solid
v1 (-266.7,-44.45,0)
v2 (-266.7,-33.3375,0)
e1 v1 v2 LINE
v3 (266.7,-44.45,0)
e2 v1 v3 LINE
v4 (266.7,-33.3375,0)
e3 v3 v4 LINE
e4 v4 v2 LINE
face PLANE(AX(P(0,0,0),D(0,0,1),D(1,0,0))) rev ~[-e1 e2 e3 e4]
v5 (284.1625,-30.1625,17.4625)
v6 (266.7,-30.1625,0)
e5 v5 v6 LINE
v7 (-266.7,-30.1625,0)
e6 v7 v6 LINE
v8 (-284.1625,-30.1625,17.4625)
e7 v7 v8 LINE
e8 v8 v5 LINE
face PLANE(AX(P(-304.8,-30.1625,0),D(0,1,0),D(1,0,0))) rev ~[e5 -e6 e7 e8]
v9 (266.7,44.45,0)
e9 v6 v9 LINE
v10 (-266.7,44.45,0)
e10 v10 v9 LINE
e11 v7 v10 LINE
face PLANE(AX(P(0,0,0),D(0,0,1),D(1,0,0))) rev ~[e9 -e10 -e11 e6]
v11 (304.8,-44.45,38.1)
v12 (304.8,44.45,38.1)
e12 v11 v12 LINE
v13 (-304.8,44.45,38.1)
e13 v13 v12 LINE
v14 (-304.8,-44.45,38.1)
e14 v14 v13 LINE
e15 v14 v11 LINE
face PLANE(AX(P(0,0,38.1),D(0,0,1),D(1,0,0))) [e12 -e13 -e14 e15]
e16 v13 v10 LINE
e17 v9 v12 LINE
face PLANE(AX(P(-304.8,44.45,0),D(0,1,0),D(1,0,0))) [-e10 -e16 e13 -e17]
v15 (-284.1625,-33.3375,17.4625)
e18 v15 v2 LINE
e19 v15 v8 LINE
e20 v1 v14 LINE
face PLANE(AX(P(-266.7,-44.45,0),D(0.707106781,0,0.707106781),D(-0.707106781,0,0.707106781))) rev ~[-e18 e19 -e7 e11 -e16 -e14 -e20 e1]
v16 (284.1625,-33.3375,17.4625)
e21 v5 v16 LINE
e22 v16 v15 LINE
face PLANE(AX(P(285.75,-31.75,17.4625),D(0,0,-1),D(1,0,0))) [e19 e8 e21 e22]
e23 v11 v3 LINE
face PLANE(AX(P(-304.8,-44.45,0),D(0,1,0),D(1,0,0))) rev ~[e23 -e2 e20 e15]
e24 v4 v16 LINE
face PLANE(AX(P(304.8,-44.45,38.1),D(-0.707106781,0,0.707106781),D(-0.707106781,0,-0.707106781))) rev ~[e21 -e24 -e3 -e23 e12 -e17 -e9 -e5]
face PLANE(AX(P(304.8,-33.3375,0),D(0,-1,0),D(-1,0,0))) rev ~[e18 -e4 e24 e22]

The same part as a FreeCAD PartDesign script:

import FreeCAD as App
import Part
import Sketcher

V = App.Vector
Q = App.Units.Quantity


def add_polygon(sketch, points):
    """Adds a closed chain of lines whose ends are joined by coincident constraints."""
    first, n = sketch.GeometryCount, len(points)
    for a, b in zip(points, points[1:] + points[:1]):
        sketch.addGeometry(Part.LineSegment(App.Vector(*a, 0), App.Vector(*b, 0)), False)
    for i in range(n):
        sketch.addConstraint(Sketcher.Constraint("Coincident", first + i, 2, first + (i + 1) % n, 1))

doc = App.newDocument("Part")
body = doc.addObject("PartDesign::Body", "Body")

# Sketch on XY plane
sketch1 = body.newObject("Sketcher::SketchObject", "Sketch")
sketch1.AttachmentSupport = (doc.getObject("XY_Plane"), [""])
sketch1.MapMode = "FlatFace"
add_polygon(sketch1, [(-304.8, 44.45), (-304.8, -44.45), (304.8, -44.45), (304.8, 44.45)])  # lines 0-3
sketch1.addConstraint([
    Sketcher.Constraint("Vertical", 0),
    Sketcher.Constraint("Horizontal", 1),
    Sketcher.Constraint("Vertical", 2),
    Sketcher.Constraint("Horizontal", 3),
    Sketcher.Constraint("Symmetric", 0, 2, 2, 2, -1, 1),
    Sketcher.Constraint("DistanceX", 1, 1, 1, 2, Q("24 in")),
    Sketcher.Constraint("DistanceY", 0, 2, 0, 1, Q("3.5 in")),
])
pad1 = body.newObject("PartDesign::Pad", "Pad")
pad1.Profile = sketch1
pad1.Length = Q("1.5 in")

# Sketch on XZ plane
sketch2 = body.newObject("Sketcher::SketchObject", "Sketch001")
sketch2.AttachmentSupport = (doc.getObject("XZ_Plane"), [""])
sketch2.MapMode = "FlatFace"
sketch2.AttachmentOffset = App.Placement(V(0, 0, 1.75 * 25.4), App.Rotation())
add_polygon(sketch2, [(-266.7, 0), (-304.8, 38.1), (-304.8, 0)])  # lines 0-2
add_polygon(sketch2, [(304.8, 0), (304.8, 38.1), (266.7, 0)])  # lines 3-5
sketch2.addConstraint([
    Sketcher.Constraint("Vertical", 1),
    Sketcher.Constraint("Horizontal", 2),
    Sketcher.Constraint("Vertical", 3),
    Sketcher.Constraint("Horizontal", 5),
    Sketcher.Constraint("Symmetric", 2, 2, 4, 2, -1, 1),
    Sketcher.Constraint("Symmetric", 0, 2, 3, 2, -2),
    Sketcher.Constraint("PointOnObject", 1, 2, -1),
    Sketcher.Constraint("Perpendicular", 0, 4),
    Sketcher.Constraint("DistanceX", 2, 1, 2, 2, Q("1.5 in")),
    Sketcher.Constraint("DistanceX", 0, 2, -1, 1, Q("12 in")),
])
pocket1 = body.newObject("PartDesign::Pocket", "Pocket")
pocket1.Profile = sketch2
pocket1.Type = "ThroughAll"

# Sketch on XY plane
sketch3 = body.newObject("Sketcher::SketchObject", "Sketch002")
sketch3.AttachmentSupport = (doc.getObject("XY_Plane"), [""])
sketch3.MapMode = "FlatFace"
add_polygon(sketch3, [(304.8, -30.1625), (304.8, -33.3375), (-304.8, -33.3375), (-304.8, -30.1625)])  # lines 0-3
sketch3.addConstraint([
    Sketcher.Constraint("Vertical", 0),
    Sketcher.Constraint("Horizontal", 1),
    Sketcher.Constraint("Vertical", 2),
    Sketcher.Constraint("Horizontal", 3),
    Sketcher.Constraint("DistanceX", 1, 2, 1, 1, Q("24 in")),
    Sketcher.Constraint("DistanceX", -1, 1, 0, 2, Q("12 in")),
    Sketcher.Constraint("DistanceY", 0, 2, 0, 1, Q("0.125 in")),
    Sketcher.Constraint("DistanceY", 0, 2, -1, 1, Q("1.3125 in")),
])
pocket2 = body.newObject("PartDesign::Pocket", "Pocket001")
pocket2.Profile = sketch3
pocket2.Length = Q("0.6875 in")
pocket2.Reversed = True

doc.recompute()
